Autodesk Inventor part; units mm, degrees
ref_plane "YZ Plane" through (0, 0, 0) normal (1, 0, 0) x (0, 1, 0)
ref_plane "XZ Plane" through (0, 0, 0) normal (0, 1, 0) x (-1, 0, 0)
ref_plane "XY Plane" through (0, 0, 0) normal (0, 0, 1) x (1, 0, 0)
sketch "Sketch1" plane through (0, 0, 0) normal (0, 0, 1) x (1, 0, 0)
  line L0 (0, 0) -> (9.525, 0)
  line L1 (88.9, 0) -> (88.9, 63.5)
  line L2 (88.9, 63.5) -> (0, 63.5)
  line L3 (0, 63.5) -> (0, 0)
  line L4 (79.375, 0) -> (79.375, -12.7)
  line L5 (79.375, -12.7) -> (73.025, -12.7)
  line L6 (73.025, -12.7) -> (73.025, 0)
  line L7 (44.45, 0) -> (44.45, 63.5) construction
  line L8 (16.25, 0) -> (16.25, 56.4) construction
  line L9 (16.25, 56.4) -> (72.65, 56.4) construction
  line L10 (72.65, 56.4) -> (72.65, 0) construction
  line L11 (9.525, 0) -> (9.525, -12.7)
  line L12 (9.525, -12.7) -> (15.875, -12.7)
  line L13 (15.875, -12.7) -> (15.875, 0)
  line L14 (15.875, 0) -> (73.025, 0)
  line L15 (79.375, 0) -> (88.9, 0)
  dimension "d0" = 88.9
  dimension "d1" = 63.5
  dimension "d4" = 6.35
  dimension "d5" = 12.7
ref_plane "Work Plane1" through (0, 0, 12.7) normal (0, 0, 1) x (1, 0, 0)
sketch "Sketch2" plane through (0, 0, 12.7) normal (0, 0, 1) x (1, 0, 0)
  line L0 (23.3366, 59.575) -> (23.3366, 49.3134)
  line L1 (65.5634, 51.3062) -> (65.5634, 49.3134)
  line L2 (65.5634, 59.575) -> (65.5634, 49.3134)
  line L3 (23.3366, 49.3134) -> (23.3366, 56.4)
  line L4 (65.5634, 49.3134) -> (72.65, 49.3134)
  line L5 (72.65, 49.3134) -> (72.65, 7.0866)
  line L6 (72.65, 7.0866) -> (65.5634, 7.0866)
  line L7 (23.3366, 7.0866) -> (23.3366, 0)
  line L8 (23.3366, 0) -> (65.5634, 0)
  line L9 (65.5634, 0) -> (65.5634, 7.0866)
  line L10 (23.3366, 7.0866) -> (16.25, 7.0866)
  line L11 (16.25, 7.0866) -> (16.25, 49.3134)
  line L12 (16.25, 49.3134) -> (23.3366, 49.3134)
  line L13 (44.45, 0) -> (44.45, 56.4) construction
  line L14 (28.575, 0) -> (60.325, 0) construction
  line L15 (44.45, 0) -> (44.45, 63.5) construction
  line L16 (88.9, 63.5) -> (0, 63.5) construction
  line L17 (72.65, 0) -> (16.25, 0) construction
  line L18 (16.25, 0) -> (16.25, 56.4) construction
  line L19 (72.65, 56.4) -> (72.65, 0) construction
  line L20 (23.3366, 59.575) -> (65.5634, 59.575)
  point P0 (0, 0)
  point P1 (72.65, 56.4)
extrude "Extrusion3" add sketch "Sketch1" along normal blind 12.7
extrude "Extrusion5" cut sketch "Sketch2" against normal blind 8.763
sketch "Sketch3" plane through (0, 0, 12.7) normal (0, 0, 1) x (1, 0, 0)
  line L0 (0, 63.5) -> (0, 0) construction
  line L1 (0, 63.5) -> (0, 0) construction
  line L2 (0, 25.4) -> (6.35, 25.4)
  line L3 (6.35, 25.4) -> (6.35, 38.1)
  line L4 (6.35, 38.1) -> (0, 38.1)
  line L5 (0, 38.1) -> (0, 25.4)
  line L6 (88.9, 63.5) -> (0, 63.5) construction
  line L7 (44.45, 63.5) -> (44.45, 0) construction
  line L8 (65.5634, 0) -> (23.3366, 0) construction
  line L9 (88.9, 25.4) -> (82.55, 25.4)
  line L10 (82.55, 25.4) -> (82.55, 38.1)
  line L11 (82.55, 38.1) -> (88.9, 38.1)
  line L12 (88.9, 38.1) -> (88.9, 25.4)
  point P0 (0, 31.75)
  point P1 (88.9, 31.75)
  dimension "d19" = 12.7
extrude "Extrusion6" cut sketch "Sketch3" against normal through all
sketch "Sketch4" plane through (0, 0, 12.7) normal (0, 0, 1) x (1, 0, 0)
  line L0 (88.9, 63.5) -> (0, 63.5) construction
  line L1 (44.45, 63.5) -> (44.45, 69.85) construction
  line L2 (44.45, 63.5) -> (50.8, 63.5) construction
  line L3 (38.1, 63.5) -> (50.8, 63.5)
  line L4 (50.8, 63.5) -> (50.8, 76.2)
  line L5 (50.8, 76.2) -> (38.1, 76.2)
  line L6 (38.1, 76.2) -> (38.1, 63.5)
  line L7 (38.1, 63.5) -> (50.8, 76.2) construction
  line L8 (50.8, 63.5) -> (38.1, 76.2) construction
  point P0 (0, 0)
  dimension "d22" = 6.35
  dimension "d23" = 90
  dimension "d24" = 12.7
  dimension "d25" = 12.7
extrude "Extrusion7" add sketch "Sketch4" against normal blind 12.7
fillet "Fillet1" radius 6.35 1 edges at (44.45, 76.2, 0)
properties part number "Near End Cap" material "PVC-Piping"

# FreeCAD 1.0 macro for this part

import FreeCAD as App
import Part
import Sketcher
from FreeCAD import Vector
Q = App.Units.Quantity


def edges_at(feature, points):
    """Names of the edges that pass closest to the given points."""
    edges = feature.Shape.Edges
    near = lambda p: min(range(len(edges)), key=lambda i: edges[i].distToShape(Part.Vertex(*p))[0])
    return sorted({f"Edge{near(p) + 1}" for p in points})


def add_polygon(sketch, points):
    """Adds a closed chain of lines whose ends are joined by coincident constraints."""
    first, n = sketch.GeometryCount, len(points)
    for a, b in zip(points, points[1:] + points[:1]):
        sketch.addGeometry(Part.LineSegment(App.Vector(*a, 0), App.Vector(*b, 0)), False)
    for i in range(n):
        sketch.addConstraint(Sketcher.Constraint("Coincident", first + i, 2, first + (i + 1) % n, 1))

doc = App.newDocument("Part")
body = doc.addObject("PartDesign::Body", "Body")

# Sketch on XY plane
sketch1 = body.newObject("Sketcher::SketchObject", "Sketch")
sketch1.AttachmentSupport = (doc.getObject("XY_Plane"), [""])
sketch1.MapMode = "FlatFace"
add_polygon(sketch1, [(0, 63.5), (0, 0), (9.525, 0), (9.525, -12.7), (15.875, -12.7), (15.875, 0), (73.025, 0), (73.025, -12.7), (79.375, -12.7), (79.375, 0), (88.9, 0), (88.9, 63.5)])  # lines 0-11
sketch1.addConstraint([
    Sketcher.Constraint("Vertical", 0),
    Sketcher.Constraint("Horizontal", 1),
    Sketcher.Constraint("Vertical", 2),
    Sketcher.Constraint("Horizontal", 3),
    Sketcher.Constraint("Vertical", 4),
    Sketcher.Constraint("Horizontal", 5),
    Sketcher.Constraint("Vertical", 6),
    Sketcher.Constraint("Horizontal", 7),
    Sketcher.Constraint("Vertical", 8),
    Sketcher.Constraint("Horizontal", 9),
    Sketcher.Constraint("Vertical", 10),
    Sketcher.Constraint("Horizontal", 11),
    Sketcher.Constraint("Coincident", 0, 2, -1, 1),
    Sketcher.Constraint("PointOnObject", 4, 2, -1),
    Sketcher.Constraint("PointOnObject", 8, 2, -1),
    Sketcher.Constraint("Horizontal", 3, 2, 6, 2),
    Sketcher.Constraint("Equal", 3, 7),
    Sketcher.Constraint("Equal", 1, 9),
    Sketcher.Constraint("DistanceX", 11, 2, 11, 1, Q("3.5 in")),
    Sketcher.Constraint("DistanceY", 0, 2, 0, 1, Q("2.5 in")),
    Sketcher.Constraint("DistanceY", 2, 2, 2, 1, Q("0.5 in")),
    Sketcher.Constraint("DistanceX", 3, 1, 3, 2, Q("0.25 in")),
    Sketcher.Constraint("DistanceX", 1, 2, 5, 2, Q("2.5 in")),
])
pad1 = body.newObject("PartDesign::Pad", "Pad")
pad1.Profile = sketch1
pad1.Length = Q("0.5 in")

# Sketch on XY plane
sketch2 = body.newObject("Sketcher::SketchObject", "Sketch001")
sketch2.AttachmentSupport = (doc.getObject("XY_Plane"), [""])
sketch2.MapMode = "FlatFace"
sketch2.AttachmentOffset = App.Placement(Vector(0, 0, 0.5 * 25.4), App.Rotation())
add_polygon(sketch2, [(65.5634, 59.575), (23.3366, 59.575), (23.3366, 49.3134), (16.25, 49.3134), (16.25, 7.0866), (23.3366, 7.0866), (23.3366, 0), (65.5634, 0), (65.5634, 7.0866), (72.65, 7.0866), (72.65, 49.3134), (65.5634, 49.3134)])  # lines 0-11
sketch2.addConstraint([
    Sketcher.Constraint("Horizontal", 0),
    Sketcher.Constraint("Vertical", 1),
    Sketcher.Constraint("Horizontal", 2),
    Sketcher.Constraint("Vertical", 3),
    Sketcher.Constraint("Horizontal", 4),
    Sketcher.Constraint("Vertical", 5),
    Sketcher.Constraint("Horizontal", 6),
    Sketcher.Constraint("Vertical", 7),
    Sketcher.Constraint("Horizontal", 8),
    Sketcher.Constraint("Vertical", 9),
    Sketcher.Constraint("Horizontal", 10),
    Sketcher.Constraint("Vertical", 11),
    Sketcher.Constraint("PointOnObject", 5, 2, -1),
    Sketcher.Constraint("Horizontal", 4, 2, 7, 2),
    Sketcher.Constraint("Horizontal", 2, 2, 9, 2),
    Sketcher.Constraint("Vertical", 1, 2, 4, 2),
    Sketcher.Constraint("Vertical", 7, 2, 10, 2),
    Sketcher.Constraint("Equal", 4, 8),
    Sketcher.Constraint("Equal", 6, 3),
    Sketcher.Constraint("Equal", 10, 5),
    Sketcher.Constraint("DistanceX", 2, 2, 2, 1, Q("0.279 in")),
    Sketcher.Constraint("DistanceY", 1, 2, 1, 1, Q("0.404 in")),
    Sketcher.Constraint("DistanceX", 0, 2, 0, 1, Q("42.2268 mm")),
    Sketcher.Constraint("DistanceX", -1, 1, 0, 2, Q("23.3366 mm")),
])
pocket1 = body.newObject("PartDesign::Pocket", "Pocket")
pocket1.Profile = sketch2
pocket1.Length = Q("0.345 in")

# Sketch on XY plane
sketch3 = body.newObject("Sketcher::SketchObject", "Sketch002")
sketch3.AttachmentSupport = (doc.getObject("XY_Plane"), [""])
sketch3.MapMode = "FlatFace"
sketch3.AttachmentOffset = App.Placement(Vector(0, 0, 0.5 * 25.4), App.Rotation())
add_polygon(sketch3, [(0, 38.1), (0, 25.4), (6.35, 25.4), (6.35, 38.1)])  # lines 0-3
add_polygon(sketch3, [(82.55, 25.4), (88.9, 25.4), (88.9, 38.1), (82.55, 38.1)])  # lines 4-7
sketch3.addConstraint([
    Sketcher.Constraint("Vertical", 0),
    Sketcher.Constraint("Horizontal", 1),
    Sketcher.Constraint("Vertical", 2),
    Sketcher.Constraint("Horizontal", 3),
    Sketcher.Constraint("Horizontal", 4),
    Sketcher.Constraint("Vertical", 5),
    Sketcher.Constraint("Horizontal", 6),
    Sketcher.Constraint("Vertical", 7),
    Sketcher.Constraint("PointOnObject", 0, 2, -2),
    Sketcher.Constraint("Horizontal", 1, 2, 4, 2),
    Sketcher.Constraint("Horizontal", 3, 2, 5, 2),
    Sketcher.Constraint("Equal", 3, 4),
    Sketcher.Constraint("DistanceY", 0, 2, 0, 1, Q("0.5 in")),
    Sketcher.Constraint("DistanceY", -1, 1, 0, 2, Q("1 in")),
    Sketcher.Constraint("DistanceX", 2, 2, 6, 2, Q("3 in")),
    Sketcher.Constraint("DistanceX", 1, 1, 1, 2, Q("0.25 in")),
])
pocket2 = body.newObject("PartDesign::Pocket", "Pocket001")
pocket2.Profile = sketch3
pocket2.Type = "ThroughAll"

# Sketch on XY plane
sketch4 = body.newObject("Sketcher::SketchObject", "Sketch003")
sketch4.AttachmentSupport = (doc.getObject("XY_Plane"), [""])
sketch4.MapMode = "FlatFace"
sketch4.AttachmentOffset = App.Placement(Vector(0, 0, 0.5 * 25.4), App.Rotation())
add_polygon(sketch4, [(38.1, 76.2), (38.1, 63.5), (50.8, 63.5), (50.8, 76.2)])  # lines 0-3
sketch4.addConstraint([
    Sketcher.Constraint("Vertical", 0),
    Sketcher.Constraint("Horizontal", 1),
    Sketcher.Constraint("Vertical", 2),
    Sketcher.Constraint("Horizontal", 3),
    Sketcher.Constraint("Equal", 3, 0),
    Sketcher.Constraint("DistanceX", 1, 1, 1, 2, Q("0.5 in")),
    Sketcher.Constraint("DistanceX", -1, 1, 1, 2, Q("2 in")),
    Sketcher.Constraint("DistanceY", -1, 1, 2, 2, Q("3 in")),
])
pad2 = body.newObject("PartDesign::Pad", "Pad001")
pad2.Profile = sketch4
pad2.Length = Q("0.5 in")
pad2.Reversed = True
doc.recompute()

fillet = body.newObject("PartDesign::Fillet", "Fillet")
fillet.Base = (pad2, edges_at(pad2, [(44.45, 76.2, 0)]))
fillet.Radius = Q("0.25 in")

doc.recompute()
